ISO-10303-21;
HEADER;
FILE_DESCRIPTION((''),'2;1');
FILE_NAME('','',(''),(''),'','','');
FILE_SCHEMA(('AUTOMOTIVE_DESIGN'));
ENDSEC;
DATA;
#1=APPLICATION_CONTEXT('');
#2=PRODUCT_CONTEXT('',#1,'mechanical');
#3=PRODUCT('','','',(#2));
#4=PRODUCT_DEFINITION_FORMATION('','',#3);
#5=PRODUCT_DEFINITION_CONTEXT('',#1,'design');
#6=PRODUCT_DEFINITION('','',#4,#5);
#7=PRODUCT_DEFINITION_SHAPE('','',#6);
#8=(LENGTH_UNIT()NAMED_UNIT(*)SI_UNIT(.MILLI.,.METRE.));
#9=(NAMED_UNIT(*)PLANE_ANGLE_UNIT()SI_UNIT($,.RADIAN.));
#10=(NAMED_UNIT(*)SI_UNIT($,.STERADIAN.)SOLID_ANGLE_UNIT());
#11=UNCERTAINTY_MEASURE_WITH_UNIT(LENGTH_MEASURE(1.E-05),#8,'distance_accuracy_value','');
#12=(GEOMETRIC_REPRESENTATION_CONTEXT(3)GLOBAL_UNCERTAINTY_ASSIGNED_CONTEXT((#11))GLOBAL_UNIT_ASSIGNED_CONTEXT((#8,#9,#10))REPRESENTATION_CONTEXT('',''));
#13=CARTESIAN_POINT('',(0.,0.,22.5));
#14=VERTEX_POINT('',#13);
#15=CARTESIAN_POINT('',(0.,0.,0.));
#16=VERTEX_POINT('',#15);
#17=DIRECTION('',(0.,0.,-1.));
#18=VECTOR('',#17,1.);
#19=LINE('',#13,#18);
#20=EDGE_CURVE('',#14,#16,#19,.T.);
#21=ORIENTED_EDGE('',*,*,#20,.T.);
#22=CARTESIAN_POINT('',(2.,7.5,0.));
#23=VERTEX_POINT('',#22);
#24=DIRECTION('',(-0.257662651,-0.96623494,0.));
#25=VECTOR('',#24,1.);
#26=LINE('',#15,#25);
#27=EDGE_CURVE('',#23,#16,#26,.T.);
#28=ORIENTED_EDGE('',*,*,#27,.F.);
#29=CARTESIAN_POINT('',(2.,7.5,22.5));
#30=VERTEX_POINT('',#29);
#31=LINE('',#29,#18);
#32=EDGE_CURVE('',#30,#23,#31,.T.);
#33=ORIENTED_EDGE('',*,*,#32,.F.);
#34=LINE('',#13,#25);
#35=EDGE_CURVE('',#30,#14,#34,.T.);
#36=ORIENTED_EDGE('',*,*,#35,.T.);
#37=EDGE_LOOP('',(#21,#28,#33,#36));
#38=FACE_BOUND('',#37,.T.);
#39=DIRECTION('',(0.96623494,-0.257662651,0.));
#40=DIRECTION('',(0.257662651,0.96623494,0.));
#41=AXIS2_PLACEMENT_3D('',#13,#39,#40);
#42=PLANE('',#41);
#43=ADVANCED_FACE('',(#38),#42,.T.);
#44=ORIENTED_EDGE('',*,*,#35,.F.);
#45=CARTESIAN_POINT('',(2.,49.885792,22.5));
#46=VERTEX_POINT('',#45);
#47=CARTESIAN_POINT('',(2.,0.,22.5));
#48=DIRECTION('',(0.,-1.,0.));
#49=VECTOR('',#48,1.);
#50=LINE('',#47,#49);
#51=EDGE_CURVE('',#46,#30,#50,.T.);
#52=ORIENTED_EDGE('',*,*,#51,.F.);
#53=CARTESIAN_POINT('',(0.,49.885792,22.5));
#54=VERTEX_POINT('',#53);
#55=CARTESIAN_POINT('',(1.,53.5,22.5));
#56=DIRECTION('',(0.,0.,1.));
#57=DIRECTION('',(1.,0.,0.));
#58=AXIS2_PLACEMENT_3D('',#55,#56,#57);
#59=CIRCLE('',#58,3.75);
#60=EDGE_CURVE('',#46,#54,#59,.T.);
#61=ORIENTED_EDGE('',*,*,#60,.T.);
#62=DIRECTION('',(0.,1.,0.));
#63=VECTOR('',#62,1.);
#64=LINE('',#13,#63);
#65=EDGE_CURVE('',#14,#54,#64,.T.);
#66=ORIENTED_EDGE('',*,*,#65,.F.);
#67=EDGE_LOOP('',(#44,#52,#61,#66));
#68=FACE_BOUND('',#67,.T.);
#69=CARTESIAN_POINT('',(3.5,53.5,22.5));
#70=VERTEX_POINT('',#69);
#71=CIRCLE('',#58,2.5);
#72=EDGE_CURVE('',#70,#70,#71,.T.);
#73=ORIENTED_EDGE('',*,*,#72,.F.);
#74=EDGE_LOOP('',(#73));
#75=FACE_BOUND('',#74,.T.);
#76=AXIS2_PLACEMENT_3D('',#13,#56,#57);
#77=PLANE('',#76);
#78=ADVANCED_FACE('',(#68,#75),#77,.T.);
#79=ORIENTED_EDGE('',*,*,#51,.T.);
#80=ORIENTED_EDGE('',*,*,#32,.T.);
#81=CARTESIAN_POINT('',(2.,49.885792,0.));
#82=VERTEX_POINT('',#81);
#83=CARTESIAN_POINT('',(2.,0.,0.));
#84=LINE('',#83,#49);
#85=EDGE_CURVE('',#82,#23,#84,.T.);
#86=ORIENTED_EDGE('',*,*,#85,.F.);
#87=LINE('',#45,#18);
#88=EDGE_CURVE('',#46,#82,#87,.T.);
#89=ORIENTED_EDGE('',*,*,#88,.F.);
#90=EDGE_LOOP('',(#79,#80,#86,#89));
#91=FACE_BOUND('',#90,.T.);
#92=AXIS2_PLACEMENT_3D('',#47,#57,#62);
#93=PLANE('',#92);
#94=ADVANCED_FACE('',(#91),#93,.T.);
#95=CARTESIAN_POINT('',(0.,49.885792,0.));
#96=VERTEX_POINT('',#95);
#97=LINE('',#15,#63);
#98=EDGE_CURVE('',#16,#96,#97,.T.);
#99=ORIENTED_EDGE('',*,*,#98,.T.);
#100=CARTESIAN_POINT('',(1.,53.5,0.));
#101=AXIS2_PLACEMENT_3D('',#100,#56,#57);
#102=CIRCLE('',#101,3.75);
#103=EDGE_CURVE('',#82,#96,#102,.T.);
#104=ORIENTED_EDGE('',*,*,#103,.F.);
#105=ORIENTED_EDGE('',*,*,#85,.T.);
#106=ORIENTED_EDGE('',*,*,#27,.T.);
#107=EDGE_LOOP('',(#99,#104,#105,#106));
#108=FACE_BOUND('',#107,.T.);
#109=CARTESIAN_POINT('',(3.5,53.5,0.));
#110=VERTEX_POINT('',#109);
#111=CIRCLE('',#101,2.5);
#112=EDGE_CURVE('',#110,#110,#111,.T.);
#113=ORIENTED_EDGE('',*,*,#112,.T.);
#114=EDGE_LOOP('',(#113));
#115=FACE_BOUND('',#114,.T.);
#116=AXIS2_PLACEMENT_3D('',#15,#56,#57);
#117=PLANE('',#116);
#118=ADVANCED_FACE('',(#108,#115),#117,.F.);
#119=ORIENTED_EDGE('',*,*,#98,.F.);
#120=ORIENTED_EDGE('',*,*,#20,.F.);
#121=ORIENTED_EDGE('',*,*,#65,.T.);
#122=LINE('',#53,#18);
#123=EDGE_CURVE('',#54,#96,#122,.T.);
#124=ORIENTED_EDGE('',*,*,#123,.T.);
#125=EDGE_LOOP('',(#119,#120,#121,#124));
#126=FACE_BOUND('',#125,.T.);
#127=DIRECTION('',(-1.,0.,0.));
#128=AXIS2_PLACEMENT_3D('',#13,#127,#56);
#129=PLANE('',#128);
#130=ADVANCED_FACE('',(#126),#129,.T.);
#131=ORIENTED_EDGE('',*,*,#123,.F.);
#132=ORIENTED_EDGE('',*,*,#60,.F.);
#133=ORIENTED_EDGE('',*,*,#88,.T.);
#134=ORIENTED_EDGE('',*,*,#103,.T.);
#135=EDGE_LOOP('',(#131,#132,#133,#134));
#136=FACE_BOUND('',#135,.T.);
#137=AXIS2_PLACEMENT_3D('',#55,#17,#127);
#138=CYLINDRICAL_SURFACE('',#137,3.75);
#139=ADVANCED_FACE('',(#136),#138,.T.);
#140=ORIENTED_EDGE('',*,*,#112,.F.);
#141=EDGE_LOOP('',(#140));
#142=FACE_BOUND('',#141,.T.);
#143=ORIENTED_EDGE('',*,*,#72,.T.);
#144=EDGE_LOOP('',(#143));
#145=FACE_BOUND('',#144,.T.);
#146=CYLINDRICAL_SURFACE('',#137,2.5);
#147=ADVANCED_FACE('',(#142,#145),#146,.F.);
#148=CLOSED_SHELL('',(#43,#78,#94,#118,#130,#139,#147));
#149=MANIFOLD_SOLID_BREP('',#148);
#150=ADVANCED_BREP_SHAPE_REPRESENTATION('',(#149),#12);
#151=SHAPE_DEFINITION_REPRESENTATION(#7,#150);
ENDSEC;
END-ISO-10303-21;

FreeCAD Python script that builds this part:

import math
import FreeCAD as App
import Part
import Sketcher

V = App.Vector

doc = App.newDocument("Part")
body = doc.addObject("PartDesign::Body", "Body")

# Sketch on XY plane
sketch1 = doc.addObject("Sketcher::SketchObject", "Sketch")
body.addObject(sketch1)
sketch1.AttachmentSupport = (doc.XY_Plane, [""])
sketch1.MapMode = "FlatFace"
sketch1.addGeometry([
    Part.LineSegment(V(0, 49.9, 0), V(0, 0, 0)),  # 0
    Part.LineSegment(V(0, 0, 0), V(2, 7.5, 0)),  # 1
    Part.LineSegment(V(2, 7.5, 0), V(2, 49.9, 0)),  # 2
    Part.ArcOfCircle(Part.Circle(V(1, 53.5, 0), V(0, 0, 1), 3.8), math.radians(-75), math.radians(255)),  # 3
    Part.Circle(V(1, 53.5, 0), V(0, 0, 1), 2.5),  # 4
], False)
sketch1.addConstraint([
    Sketcher.Constraint("Coincident", 0, 2, 1, 1),
    Sketcher.Constraint("Coincident", 1, 2, 2, 1),
    Sketcher.Constraint("Coincident", 2, 2, 3, 1),
    Sketcher.Constraint("Coincident", 3, 2, 0, 1),
    Sketcher.Constraint("Vertical", 0),
    Sketcher.Constraint("Vertical", 2),
    Sketcher.Constraint("Coincident", 0, 2, -1, 1),
    Sketcher.Constraint("Coincident", 4, 3, 3, 3),
    Sketcher.Constraint("Horizontal", 2, 2, 3, 2),
    Sketcher.Constraint("Diameter", 4, 5.0),
    Sketcher.Constraint("Radius", 3, 3.75),
    Sketcher.Constraint("DistanceX", -1, 1, 3, 3, 1.0),
    Sketcher.Constraint("DistanceY", 1, 2, 3, 3, 46.0),
    Sketcher.Constraint("DistanceY", -1, 1, 3, 3, 53.5),
])
pad1 = doc.addObject("PartDesign::Pad", "Pad")
body.addObject(pad1)
pad1.Profile = sketch1
pad1.Length = 22.5

doc.recompute()
